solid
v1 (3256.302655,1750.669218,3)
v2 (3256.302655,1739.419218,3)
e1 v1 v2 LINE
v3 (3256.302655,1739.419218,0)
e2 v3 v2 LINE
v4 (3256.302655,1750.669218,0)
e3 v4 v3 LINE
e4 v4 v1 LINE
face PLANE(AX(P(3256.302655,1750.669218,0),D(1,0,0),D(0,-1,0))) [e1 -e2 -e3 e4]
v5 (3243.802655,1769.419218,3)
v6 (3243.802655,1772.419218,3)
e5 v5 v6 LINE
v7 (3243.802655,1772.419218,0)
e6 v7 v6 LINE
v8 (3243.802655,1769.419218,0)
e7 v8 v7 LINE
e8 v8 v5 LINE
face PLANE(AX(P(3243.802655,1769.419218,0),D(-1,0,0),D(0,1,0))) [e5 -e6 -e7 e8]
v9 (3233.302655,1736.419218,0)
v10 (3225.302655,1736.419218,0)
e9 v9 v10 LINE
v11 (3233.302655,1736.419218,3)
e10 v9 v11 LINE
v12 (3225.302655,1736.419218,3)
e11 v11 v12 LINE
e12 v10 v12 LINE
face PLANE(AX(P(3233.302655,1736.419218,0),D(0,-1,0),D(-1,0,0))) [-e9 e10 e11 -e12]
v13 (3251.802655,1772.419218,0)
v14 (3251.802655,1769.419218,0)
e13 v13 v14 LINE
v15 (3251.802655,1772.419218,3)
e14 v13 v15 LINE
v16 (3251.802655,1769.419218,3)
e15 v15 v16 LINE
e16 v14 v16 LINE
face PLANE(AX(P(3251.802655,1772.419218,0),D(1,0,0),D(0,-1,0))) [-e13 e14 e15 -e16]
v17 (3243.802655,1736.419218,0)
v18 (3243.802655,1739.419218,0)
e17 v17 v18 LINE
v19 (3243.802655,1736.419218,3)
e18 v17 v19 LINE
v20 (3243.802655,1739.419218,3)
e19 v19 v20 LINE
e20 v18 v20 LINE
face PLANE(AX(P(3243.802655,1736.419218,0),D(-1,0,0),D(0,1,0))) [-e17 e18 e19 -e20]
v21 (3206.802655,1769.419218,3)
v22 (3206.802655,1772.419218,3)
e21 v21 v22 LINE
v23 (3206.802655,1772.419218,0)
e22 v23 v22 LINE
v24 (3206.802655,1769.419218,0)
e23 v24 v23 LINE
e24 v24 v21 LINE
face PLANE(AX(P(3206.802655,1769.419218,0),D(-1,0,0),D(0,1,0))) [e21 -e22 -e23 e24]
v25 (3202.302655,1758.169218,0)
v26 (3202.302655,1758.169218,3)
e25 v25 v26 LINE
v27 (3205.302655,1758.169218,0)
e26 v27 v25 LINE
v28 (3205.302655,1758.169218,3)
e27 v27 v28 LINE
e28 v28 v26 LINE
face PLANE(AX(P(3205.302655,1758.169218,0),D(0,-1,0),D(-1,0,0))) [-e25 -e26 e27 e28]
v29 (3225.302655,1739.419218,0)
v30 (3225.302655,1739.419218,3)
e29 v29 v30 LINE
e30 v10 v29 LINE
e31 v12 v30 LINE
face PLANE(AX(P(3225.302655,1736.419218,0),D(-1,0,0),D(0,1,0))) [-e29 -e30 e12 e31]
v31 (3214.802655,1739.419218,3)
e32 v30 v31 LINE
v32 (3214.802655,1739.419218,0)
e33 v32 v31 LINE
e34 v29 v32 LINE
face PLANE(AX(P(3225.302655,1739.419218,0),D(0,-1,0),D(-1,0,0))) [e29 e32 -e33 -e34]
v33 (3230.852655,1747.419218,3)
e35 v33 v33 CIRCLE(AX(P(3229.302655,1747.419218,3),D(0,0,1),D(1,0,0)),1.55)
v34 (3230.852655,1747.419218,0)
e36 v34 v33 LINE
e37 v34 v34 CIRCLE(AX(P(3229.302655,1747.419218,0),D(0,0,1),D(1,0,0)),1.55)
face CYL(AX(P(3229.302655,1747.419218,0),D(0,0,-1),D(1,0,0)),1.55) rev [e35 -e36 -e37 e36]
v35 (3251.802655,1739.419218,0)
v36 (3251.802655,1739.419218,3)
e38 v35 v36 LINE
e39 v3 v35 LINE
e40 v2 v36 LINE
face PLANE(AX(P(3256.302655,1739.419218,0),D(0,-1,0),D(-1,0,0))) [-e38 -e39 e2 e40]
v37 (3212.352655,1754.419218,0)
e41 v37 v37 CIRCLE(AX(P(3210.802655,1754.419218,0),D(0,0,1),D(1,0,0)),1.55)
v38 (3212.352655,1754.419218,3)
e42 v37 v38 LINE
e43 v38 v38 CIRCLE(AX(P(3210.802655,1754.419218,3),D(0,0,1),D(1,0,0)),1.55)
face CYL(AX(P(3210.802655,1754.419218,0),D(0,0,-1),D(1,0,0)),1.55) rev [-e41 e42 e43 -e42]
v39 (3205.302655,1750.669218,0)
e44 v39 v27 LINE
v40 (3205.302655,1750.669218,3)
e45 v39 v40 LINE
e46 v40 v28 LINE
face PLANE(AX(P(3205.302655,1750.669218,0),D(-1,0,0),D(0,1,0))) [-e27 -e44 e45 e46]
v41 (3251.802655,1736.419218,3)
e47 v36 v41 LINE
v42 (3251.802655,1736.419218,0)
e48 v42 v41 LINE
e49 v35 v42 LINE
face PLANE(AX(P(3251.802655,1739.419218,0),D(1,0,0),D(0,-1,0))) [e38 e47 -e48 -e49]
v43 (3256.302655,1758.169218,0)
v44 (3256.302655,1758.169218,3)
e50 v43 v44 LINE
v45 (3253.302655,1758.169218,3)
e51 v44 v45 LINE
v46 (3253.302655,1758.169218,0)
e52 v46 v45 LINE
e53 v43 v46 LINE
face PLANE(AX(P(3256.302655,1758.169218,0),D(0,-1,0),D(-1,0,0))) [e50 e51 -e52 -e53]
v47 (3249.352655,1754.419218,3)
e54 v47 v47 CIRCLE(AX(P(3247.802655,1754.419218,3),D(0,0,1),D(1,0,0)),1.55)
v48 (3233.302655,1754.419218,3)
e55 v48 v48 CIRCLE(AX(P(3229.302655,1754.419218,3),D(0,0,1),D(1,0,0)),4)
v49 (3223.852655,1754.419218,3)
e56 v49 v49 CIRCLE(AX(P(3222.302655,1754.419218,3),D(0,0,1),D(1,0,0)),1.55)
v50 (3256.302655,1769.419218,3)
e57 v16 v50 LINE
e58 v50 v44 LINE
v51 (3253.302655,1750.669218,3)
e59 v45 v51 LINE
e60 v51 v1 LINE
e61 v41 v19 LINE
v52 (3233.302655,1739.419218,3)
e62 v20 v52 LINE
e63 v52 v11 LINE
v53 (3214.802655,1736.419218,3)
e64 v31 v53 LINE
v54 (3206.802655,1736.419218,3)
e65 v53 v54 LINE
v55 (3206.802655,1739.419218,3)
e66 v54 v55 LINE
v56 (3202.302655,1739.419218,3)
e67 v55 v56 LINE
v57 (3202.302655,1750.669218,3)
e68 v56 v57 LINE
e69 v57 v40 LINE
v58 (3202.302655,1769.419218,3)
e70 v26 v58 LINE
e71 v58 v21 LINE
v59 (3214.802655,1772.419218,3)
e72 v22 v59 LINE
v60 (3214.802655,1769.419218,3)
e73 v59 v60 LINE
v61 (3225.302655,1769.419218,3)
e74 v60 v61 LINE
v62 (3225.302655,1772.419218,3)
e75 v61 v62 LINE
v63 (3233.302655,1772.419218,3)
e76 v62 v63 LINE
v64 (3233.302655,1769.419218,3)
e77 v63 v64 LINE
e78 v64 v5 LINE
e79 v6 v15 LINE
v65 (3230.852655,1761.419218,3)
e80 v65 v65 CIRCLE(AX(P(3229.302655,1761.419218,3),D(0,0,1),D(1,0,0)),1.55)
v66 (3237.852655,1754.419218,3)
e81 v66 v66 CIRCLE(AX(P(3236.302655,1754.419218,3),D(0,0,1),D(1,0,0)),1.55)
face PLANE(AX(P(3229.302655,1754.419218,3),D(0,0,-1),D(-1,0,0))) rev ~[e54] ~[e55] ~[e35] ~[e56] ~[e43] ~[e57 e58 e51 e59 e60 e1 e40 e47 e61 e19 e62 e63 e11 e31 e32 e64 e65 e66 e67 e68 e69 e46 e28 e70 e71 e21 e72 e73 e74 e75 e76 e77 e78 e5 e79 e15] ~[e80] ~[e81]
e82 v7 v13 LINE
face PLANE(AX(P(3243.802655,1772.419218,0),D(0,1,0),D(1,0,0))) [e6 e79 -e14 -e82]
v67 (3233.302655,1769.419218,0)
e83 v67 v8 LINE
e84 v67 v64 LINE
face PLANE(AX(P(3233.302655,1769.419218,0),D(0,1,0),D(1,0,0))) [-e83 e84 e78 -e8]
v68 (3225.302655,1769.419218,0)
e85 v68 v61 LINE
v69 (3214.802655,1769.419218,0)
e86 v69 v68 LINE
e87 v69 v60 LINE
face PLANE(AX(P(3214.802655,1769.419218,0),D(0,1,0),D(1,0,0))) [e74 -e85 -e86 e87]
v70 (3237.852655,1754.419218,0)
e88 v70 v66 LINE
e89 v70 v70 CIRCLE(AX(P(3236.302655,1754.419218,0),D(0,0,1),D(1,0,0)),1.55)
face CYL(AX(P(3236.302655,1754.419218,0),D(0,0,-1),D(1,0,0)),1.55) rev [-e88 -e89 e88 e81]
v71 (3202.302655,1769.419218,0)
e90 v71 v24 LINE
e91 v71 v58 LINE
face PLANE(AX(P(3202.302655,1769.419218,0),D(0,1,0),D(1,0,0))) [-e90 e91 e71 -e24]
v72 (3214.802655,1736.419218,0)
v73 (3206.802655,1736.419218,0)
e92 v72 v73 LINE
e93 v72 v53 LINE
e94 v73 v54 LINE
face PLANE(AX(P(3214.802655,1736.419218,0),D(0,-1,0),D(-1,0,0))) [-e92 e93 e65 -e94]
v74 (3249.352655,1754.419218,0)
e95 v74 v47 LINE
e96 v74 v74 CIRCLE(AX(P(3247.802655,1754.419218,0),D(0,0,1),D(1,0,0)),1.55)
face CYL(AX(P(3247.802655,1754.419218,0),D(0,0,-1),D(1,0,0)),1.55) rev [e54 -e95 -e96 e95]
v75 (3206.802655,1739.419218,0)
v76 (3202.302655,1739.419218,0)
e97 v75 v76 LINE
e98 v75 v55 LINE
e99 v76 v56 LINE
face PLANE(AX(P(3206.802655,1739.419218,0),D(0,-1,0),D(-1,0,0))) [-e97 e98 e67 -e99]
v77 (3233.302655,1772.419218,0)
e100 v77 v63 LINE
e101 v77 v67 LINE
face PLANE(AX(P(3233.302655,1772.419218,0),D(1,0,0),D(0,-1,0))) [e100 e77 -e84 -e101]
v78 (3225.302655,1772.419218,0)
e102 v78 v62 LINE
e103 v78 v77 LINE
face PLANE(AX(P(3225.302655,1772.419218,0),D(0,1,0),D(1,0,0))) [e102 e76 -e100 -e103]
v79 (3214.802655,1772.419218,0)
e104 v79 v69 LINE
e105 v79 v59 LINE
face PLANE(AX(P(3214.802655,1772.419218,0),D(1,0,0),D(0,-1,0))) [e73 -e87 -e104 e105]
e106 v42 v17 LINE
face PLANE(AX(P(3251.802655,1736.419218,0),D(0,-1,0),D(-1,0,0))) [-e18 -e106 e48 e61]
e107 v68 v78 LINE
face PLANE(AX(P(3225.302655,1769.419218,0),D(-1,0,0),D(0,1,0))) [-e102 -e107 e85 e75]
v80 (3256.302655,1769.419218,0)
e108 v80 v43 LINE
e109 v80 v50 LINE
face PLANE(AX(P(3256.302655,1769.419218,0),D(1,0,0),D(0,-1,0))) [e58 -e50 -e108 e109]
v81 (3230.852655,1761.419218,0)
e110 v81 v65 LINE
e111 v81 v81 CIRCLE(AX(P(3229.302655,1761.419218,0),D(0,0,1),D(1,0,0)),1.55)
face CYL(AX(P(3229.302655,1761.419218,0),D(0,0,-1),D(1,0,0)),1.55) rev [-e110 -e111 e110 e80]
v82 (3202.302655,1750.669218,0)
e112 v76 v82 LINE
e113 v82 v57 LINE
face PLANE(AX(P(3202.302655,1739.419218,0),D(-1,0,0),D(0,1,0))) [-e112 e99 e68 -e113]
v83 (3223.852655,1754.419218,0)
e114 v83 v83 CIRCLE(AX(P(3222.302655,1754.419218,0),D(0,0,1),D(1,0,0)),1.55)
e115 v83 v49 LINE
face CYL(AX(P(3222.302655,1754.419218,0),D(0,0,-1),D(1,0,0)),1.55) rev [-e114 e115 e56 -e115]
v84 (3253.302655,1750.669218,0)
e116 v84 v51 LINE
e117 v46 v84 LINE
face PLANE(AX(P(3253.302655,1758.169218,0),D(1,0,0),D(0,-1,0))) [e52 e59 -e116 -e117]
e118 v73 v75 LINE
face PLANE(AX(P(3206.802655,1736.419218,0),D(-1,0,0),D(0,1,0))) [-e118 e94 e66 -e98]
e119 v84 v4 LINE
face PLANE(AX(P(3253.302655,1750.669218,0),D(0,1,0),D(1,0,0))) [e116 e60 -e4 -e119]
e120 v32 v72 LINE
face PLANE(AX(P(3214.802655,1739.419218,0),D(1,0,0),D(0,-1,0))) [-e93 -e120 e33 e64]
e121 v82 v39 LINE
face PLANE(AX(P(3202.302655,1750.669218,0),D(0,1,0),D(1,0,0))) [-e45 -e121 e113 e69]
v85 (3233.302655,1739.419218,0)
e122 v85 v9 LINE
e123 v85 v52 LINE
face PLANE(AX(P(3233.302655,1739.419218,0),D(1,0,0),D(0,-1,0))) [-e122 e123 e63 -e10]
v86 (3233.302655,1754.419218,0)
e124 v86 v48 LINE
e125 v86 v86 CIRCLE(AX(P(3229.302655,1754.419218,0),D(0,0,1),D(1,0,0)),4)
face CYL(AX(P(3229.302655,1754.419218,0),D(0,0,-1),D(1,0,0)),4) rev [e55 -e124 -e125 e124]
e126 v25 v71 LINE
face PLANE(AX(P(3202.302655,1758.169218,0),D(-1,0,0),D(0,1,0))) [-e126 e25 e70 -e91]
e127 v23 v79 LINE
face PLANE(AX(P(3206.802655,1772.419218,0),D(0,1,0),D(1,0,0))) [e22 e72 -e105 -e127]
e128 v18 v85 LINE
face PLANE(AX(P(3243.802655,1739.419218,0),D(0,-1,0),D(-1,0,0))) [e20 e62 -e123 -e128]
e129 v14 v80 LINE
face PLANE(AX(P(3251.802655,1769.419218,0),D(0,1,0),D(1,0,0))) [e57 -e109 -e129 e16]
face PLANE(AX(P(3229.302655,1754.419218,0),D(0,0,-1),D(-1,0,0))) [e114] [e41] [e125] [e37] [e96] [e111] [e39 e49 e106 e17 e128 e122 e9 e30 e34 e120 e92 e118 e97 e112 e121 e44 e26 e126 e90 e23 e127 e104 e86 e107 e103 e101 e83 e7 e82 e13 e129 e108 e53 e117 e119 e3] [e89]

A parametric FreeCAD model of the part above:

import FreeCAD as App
import Part
import Sketcher
from FreeCAD import Vector


def add_polygon(sketch, points):
    """Adds a closed chain of lines whose ends are joined by coincident constraints."""
    first, n = sketch.GeometryCount, len(points)
    for a, b in zip(points, points[1:] + points[:1]):
        sketch.addGeometry(Part.LineSegment(App.Vector(*a, 0), App.Vector(*b, 0)), False)
    for i in range(n):
        sketch.addConstraint(Sketcher.Constraint("Coincident", first + i, 2, first + (i + 1) % n, 1))

doc = App.newDocument("Part")
params = doc.addObject("Spreadsheet::Sheet", "Params")
for row, (alias, value) in enumerate([
    ("sketch1_diameter", "8 mm"),
    ("sketch1_diameter2", "3.1 mm"),
    ("sketch1_width", "8 mm"),
    ("sketch1_width2", "3 mm"),
    ("sketch1_width3", "10.5 mm"),
    ("pad1_length", "3 mm"),
], start=1):
    params.set(f"A{row}", alias)
    params.set(f"B{row}", "=" + value)
    params.setAlias(f"B{row}", alias)

body = doc.addObject("PartDesign::Body", "Body")

sketch1 = body.newObject("Sketcher::SketchObject", "Sketch")
sketch1.AttachmentSupport = (doc.getObject("XY_Plane"), [""])
sketch1.MapMode = "FlatFace"
add_polygon(sketch1, [(3225.302655, 1769.419218), (3214.802655, 1769.419218), (3214.802655, 1772.419218), (3206.802655, 1772.419218), (3206.802655, 1769.419218), (3202.302655, 1769.419218), (3202.302655, 1758.169218), (3205.302655, 1758.169218), (3205.302655, 1750.669218), (3202.302655, 1750.669218), (3202.302655, 1739.419218), (3206.802655, 1739.419218), (3206.802655, 1736.419218), (3214.802655, 1736.419218), (3214.802655, 1739.419218), (3225.302655, 1739.419218), (3225.302655, 1736.419218), (3233.302655, 1736.419218), (3233.302655, 1739.419218), (3243.802655, 1739.419218), (3243.802655, 1736.419218), (3251.802655, 1736.419218), (3251.802655, 1739.419218), (3256.302655, 1739.419218), (3256.302655, 1750.669218), (3253.302655, 1750.669218), (3253.302655, 1758.169218), (3256.302655, 1758.169218), (3256.302655, 1769.419218), (3251.802655, 1769.419218), (3251.802655, 1772.419218), (3243.802655, 1772.419218), (3243.802655, 1769.419218), (3233.302655, 1769.419218), (3233.302655, 1772.419218), (3225.302655, 1772.419218)])
sketch1.addGeometry(Part.Circle(Vector(3229.302655, 1747.419218, 0), Vector(0, 0, 1), 1.55), False)
sketch1.addGeometry(Part.Circle(Vector(3247.802655, 1754.419218, 0), Vector(0, 0, 1), 1.55), False)
sketch1.addGeometry(Part.Circle(Vector(3236.302655, 1754.419218, 0), Vector(0, 0, 1), 1.55), False)
sketch1.addGeometry(Part.Circle(Vector(3229.302655, 1754.419218, 0), Vector(0, 0, 1), 4), False)
sketch1.addGeometry(Part.Circle(Vector(3229.302655, 1761.419218, 0), Vector(0, 0, 1), 1.55), False)
sketch1.addGeometry(Part.Circle(Vector(3222.302655, 1754.419218, 0), Vector(0, 0, 1), 1.55), False)
sketch1.addGeometry(Part.Circle(Vector(3210.802655, 1754.419218, 0), Vector(0, 0, 1), 1.55), False)
sketch1.addConstraint([
    Sketcher.Constraint("Horizontal", 0),
    Sketcher.Constraint("Vertical", 1),
    Sketcher.Constraint("Horizontal", 2),
    Sketcher.Constraint("Vertical", 3),
    Sketcher.Constraint("Horizontal", 4),
    Sketcher.Constraint("Vertical", 5),
    Sketcher.Constraint("Horizontal", 6),
    Sketcher.Constraint("Vertical", 7),
    Sketcher.Constraint("Horizontal", 8),
    Sketcher.Constraint("Vertical", 9),
    Sketcher.Constraint("Horizontal", 10),
    Sketcher.Constraint("Vertical", 11),
    Sketcher.Constraint("Horizontal", 12),
    Sketcher.Constraint("Vertical", 13),
    Sketcher.Constraint("Horizontal", 14),
    Sketcher.Constraint("Vertical", 15),
    Sketcher.Constraint("Horizontal", 16),
    Sketcher.Constraint("Vertical", 17),
    Sketcher.Constraint("Horizontal", 18),
    Sketcher.Constraint("Vertical", 19),
    Sketcher.Constraint("Horizontal", 20),
    Sketcher.Constraint("Vertical", 21),
    Sketcher.Constraint("Horizontal", 22),
    Sketcher.Constraint("Vertical", 23),
    Sketcher.Constraint("Horizontal", 24),
    Sketcher.Constraint("Vertical", 25),
    Sketcher.Constraint("Horizontal", 26),
    Sketcher.Constraint("Vertical", 27),
    Sketcher.Constraint("Horizontal", 28),
    Sketcher.Constraint("Vertical", 29),
    Sketcher.Constraint("Horizontal", 30),
    Sketcher.Constraint("Vertical", 31),
    Sketcher.Constraint("Horizontal", 32),
    Sketcher.Constraint("Vertical", 33),
    Sketcher.Constraint("Horizontal", 34),
    Sketcher.Constraint("Vertical", 35),
    Sketcher.Constraint("Equal", 36, 37),
    Sketcher.Constraint("Equal", 37, 38),
    Sketcher.Constraint("Equal", 38, 40),
    Sketcher.Constraint("Equal", 40, 41),
    Sketcher.Constraint("Equal", 41, 42),
    Sketcher.Constraint("Horizontal", 37, 3, 38, 3),
    Sketcher.Constraint("Horizontal", 38, 3, 39, 3),
    Sketcher.Constraint("Horizontal", 39, 3, 41, 3),
    Sketcher.Constraint("Horizontal", 41, 3, 42, 3),
    Sketcher.Constraint("Horizontal", 0, 2, 3, 2),
    Sketcher.Constraint("Horizontal", 10, 2, 13, 2),
    Sketcher.Constraint("Horizontal", 12, 2, 15, 2),
    Sketcher.Constraint("Horizontal", 14, 2, 17, 2),
    Sketcher.Constraint("Horizontal", 16, 2, 19, 2),
    Sketcher.Constraint("Horizontal", 18, 2, 21, 2),
    Sketcher.Constraint("Horizontal", 8, 2, 23, 2),
    Sketcher.Constraint("Horizontal", 6, 2, 25, 2),
    Sketcher.Constraint("Horizontal", 4, 2, 27, 2),
    Sketcher.Constraint("Horizontal", 2, 2, 29, 2),
    Sketcher.Constraint("Horizontal", 28, 2, 31, 2),
    Sketcher.Constraint("Horizontal", 30, 2, 33, 2),
    Sketcher.Constraint("Vertical", 36, 3, 39, 3),
    Sketcher.Constraint("Vertical", 39, 3, 40, 3),
    Sketcher.Constraint("Vertical", 5, 2, 8, 2),
    Sketcher.Constraint("Vertical", 3, 2, 10, 2),
    Sketcher.Constraint("Vertical", 1, 2, 12, 2),
    Sketcher.Constraint("Vertical", 23, 2, 26, 2),
    Sketcher.Constraint("Vertical", 21, 2, 28, 2),
    Sketcher.Constraint("Vertical", 19, 2, 30, 2),
    Sketcher.Constraint("Vertical", 17, 2, 32, 2),
    Sketcher.Constraint("Vertical", 15, 2, 34, 2),
    Sketcher.Constraint("Equal", 12, 16),
    Sketcher.Constraint("Equal", 14, 18),
    Sketcher.Constraint("Equal", 16, 20),
    Sketcher.Constraint("Equal", 10, 22),
    Sketcher.Constraint("Equal", 8, 24),
    Sketcher.Constraint("Equal", 26, 1),
    Sketcher.Constraint("Equal", 5, 9),
    Sketcher.Constraint("Equal", 3, 11),
    Sketcher.Constraint("Diameter", 39, 8.0),
    Sketcher.Constraint("Diameter", 36, 3.1),
    Sketcher.Constraint("DistanceX", 2, 2, 2, 1, 8.0),
    Sketcher.Constraint("DistanceX", 6, 1, 6, 2, 3.0),
    Sketcher.Constraint("DistanceX", 0, 2, 0, 1, 10.5),
    Sketcher.Constraint("DistanceX", 4, 2, 4, 1, 4.5),
    Sketcher.Constraint("DistanceY", 7, 2, 7, 1, 7.5),
    Sketcher.Constraint("DistanceY", 36, 3, 37, 3, 7.0),
    Sketcher.Constraint("DistanceX", 36, 3, 38, 3, 7.0),
    Sketcher.Constraint("DistanceY", 39, 3, 40, 3, 7.0),
    Sketcher.Constraint("DistanceX", 41, 3, 39, 3, 7.0),
    Sketcher.Constraint("DistanceX", 42, 3, 0, 2, 4.0),
    Sketcher.Constraint("DistanceY", 42, 3, 0, 2, 15.0),
    Sketcher.Constraint("DistanceX", 7, 2, 41, 3, 17.0),
    Sketcher.Constraint("DistanceY", 9, 2, 42, 3, 15.0),
    Sketcher.Constraint("DistanceX", 18, 2, 37, 3, 4.0),
    Sketcher.Constraint("DistanceX", -1, 1, 36, 3, 3229.302655),
    Sketcher.Constraint("DistanceY", -1, 1, 36, 3, 1747.419218),
])
sketch1.setExpression("Constraints[111]", "Params.sketch1_diameter")
sketch1.setExpression("Constraints[112]", "Params.sketch1_diameter2")
sketch1.setExpression("Constraints[113]", "Params.sketch1_width")
sketch1.setExpression("Constraints[114]", "Params.sketch1_width2")
sketch1.setExpression("Constraints[115]", "Params.sketch1_width3")
pad1 = body.newObject("PartDesign::Pad", "Pad")
pad1.Profile = sketch1
pad1.setExpression("Length", "Params.pad1_length")

doc.recompute()
